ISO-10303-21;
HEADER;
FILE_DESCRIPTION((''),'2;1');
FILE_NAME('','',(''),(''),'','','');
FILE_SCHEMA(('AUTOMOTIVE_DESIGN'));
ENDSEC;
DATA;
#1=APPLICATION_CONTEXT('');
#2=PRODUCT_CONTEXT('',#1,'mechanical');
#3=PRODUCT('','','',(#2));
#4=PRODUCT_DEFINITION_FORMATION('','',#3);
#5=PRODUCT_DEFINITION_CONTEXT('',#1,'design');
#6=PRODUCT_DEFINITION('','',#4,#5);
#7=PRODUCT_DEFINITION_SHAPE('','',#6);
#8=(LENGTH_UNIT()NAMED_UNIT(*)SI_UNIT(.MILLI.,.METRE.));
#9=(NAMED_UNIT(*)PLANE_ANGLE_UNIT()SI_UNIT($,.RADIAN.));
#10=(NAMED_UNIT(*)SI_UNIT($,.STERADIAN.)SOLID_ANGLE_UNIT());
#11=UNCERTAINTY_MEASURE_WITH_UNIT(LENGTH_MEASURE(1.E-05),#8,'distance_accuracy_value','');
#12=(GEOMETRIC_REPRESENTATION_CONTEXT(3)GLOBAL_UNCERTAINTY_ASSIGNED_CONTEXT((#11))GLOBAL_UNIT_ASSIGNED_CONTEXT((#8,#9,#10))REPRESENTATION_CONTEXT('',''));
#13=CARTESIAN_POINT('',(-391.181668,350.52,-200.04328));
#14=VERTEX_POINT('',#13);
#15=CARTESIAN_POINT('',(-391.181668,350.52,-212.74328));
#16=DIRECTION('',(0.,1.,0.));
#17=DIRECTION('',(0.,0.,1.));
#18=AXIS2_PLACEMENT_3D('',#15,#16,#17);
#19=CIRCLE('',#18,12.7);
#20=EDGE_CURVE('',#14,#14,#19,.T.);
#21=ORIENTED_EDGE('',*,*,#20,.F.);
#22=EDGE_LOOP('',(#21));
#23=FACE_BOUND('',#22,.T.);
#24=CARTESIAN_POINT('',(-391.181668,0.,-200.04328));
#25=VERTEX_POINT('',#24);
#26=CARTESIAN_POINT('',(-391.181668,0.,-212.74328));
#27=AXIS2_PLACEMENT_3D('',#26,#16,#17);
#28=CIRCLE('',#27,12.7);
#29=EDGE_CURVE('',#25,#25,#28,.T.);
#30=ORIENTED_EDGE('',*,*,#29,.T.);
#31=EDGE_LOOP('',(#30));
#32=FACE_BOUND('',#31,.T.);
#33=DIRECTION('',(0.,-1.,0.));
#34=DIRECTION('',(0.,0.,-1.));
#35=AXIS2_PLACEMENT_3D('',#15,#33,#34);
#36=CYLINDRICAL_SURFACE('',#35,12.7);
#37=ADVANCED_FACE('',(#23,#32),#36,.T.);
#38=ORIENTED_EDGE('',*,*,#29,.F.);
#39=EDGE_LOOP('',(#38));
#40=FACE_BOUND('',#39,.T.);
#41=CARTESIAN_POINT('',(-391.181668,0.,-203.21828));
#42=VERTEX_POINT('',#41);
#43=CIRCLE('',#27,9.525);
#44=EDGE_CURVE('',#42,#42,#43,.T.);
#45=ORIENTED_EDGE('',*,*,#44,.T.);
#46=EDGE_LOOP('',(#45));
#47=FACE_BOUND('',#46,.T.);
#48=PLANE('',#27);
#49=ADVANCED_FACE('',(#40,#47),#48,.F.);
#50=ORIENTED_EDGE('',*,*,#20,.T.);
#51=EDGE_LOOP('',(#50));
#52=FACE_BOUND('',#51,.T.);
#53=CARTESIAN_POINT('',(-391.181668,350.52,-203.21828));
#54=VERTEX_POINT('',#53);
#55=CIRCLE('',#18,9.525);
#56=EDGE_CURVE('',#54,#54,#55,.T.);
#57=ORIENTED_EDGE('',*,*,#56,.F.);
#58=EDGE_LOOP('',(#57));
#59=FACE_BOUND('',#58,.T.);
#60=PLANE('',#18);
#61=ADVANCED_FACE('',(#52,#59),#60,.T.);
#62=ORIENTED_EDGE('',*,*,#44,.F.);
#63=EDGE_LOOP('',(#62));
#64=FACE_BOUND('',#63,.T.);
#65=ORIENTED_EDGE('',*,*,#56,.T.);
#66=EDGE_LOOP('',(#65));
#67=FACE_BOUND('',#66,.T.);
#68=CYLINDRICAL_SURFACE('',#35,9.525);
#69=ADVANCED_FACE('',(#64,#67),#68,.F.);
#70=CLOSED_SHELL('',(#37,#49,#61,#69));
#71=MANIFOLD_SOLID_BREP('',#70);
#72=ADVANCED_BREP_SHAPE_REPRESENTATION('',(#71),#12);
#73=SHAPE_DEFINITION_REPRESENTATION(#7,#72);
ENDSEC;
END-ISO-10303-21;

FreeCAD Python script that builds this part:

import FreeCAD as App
import Part
import Sketcher
from FreeCAD import Vector
Q = App.Units.Quantity

doc = App.newDocument("Part")
params = doc.addObject("Spreadsheet::Sheet", "Params")
for row, (alias, value) in enumerate([
    ("sketch1_diameter", "1 in"),
    ("sketch1_diameter2", "0.75 in"),
    ("pad1_length", "13.8 in"),
], start=1):
    params.set(f"A{row}", alias)
    params.set(f"B{row}", "=" + value)
    params.setAlias(f"B{row}", alias)

body = doc.addObject("PartDesign::Body", "Body")

sketch1 = body.newObject("Sketcher::SketchObject", "Sketch")
sketch1.AttachmentSupport = (doc.getObject("XZ_Plane"), [""])
sketch1.MapMode = "FlatFace"
sketch1.addGeometry(Part.Circle(Vector(-391, -213, 0), Vector(0, 0, 1), 13), False)
sketch1.addGeometry(Part.Circle(Vector(-391, -213, 0), Vector(0, 0, 1), 10), False)
sketch1.addConstraint(Sketcher.Constraint("Coincident", 1, 3, 0, 3))
sketch1.addConstraint(Sketcher.Constraint("Diameter", 0, Q("1 in")))
sketch1.addConstraint(Sketcher.Constraint("Diameter", 1, Q("0.75 in")))
sketch1.addConstraint(Sketcher.Constraint("DistanceX", 0, 3, -1, 1, Q("391.181668 mm")))
sketch1.addConstraint(Sketcher.Constraint("DistanceY", 0, 3, -1, 1, Q("212.74328 mm")))
sketch1.setExpression("Constraints[1]", "Params.sketch1_diameter")
sketch1.setExpression("Constraints[2]", "Params.sketch1_diameter2")
pad1 = body.newObject("PartDesign::Pad", "Pad")
pad1.Profile = sketch1
pad1.setExpression("Length", "Params.pad1_length")
pad1.Reversed = True

doc.recompute()
